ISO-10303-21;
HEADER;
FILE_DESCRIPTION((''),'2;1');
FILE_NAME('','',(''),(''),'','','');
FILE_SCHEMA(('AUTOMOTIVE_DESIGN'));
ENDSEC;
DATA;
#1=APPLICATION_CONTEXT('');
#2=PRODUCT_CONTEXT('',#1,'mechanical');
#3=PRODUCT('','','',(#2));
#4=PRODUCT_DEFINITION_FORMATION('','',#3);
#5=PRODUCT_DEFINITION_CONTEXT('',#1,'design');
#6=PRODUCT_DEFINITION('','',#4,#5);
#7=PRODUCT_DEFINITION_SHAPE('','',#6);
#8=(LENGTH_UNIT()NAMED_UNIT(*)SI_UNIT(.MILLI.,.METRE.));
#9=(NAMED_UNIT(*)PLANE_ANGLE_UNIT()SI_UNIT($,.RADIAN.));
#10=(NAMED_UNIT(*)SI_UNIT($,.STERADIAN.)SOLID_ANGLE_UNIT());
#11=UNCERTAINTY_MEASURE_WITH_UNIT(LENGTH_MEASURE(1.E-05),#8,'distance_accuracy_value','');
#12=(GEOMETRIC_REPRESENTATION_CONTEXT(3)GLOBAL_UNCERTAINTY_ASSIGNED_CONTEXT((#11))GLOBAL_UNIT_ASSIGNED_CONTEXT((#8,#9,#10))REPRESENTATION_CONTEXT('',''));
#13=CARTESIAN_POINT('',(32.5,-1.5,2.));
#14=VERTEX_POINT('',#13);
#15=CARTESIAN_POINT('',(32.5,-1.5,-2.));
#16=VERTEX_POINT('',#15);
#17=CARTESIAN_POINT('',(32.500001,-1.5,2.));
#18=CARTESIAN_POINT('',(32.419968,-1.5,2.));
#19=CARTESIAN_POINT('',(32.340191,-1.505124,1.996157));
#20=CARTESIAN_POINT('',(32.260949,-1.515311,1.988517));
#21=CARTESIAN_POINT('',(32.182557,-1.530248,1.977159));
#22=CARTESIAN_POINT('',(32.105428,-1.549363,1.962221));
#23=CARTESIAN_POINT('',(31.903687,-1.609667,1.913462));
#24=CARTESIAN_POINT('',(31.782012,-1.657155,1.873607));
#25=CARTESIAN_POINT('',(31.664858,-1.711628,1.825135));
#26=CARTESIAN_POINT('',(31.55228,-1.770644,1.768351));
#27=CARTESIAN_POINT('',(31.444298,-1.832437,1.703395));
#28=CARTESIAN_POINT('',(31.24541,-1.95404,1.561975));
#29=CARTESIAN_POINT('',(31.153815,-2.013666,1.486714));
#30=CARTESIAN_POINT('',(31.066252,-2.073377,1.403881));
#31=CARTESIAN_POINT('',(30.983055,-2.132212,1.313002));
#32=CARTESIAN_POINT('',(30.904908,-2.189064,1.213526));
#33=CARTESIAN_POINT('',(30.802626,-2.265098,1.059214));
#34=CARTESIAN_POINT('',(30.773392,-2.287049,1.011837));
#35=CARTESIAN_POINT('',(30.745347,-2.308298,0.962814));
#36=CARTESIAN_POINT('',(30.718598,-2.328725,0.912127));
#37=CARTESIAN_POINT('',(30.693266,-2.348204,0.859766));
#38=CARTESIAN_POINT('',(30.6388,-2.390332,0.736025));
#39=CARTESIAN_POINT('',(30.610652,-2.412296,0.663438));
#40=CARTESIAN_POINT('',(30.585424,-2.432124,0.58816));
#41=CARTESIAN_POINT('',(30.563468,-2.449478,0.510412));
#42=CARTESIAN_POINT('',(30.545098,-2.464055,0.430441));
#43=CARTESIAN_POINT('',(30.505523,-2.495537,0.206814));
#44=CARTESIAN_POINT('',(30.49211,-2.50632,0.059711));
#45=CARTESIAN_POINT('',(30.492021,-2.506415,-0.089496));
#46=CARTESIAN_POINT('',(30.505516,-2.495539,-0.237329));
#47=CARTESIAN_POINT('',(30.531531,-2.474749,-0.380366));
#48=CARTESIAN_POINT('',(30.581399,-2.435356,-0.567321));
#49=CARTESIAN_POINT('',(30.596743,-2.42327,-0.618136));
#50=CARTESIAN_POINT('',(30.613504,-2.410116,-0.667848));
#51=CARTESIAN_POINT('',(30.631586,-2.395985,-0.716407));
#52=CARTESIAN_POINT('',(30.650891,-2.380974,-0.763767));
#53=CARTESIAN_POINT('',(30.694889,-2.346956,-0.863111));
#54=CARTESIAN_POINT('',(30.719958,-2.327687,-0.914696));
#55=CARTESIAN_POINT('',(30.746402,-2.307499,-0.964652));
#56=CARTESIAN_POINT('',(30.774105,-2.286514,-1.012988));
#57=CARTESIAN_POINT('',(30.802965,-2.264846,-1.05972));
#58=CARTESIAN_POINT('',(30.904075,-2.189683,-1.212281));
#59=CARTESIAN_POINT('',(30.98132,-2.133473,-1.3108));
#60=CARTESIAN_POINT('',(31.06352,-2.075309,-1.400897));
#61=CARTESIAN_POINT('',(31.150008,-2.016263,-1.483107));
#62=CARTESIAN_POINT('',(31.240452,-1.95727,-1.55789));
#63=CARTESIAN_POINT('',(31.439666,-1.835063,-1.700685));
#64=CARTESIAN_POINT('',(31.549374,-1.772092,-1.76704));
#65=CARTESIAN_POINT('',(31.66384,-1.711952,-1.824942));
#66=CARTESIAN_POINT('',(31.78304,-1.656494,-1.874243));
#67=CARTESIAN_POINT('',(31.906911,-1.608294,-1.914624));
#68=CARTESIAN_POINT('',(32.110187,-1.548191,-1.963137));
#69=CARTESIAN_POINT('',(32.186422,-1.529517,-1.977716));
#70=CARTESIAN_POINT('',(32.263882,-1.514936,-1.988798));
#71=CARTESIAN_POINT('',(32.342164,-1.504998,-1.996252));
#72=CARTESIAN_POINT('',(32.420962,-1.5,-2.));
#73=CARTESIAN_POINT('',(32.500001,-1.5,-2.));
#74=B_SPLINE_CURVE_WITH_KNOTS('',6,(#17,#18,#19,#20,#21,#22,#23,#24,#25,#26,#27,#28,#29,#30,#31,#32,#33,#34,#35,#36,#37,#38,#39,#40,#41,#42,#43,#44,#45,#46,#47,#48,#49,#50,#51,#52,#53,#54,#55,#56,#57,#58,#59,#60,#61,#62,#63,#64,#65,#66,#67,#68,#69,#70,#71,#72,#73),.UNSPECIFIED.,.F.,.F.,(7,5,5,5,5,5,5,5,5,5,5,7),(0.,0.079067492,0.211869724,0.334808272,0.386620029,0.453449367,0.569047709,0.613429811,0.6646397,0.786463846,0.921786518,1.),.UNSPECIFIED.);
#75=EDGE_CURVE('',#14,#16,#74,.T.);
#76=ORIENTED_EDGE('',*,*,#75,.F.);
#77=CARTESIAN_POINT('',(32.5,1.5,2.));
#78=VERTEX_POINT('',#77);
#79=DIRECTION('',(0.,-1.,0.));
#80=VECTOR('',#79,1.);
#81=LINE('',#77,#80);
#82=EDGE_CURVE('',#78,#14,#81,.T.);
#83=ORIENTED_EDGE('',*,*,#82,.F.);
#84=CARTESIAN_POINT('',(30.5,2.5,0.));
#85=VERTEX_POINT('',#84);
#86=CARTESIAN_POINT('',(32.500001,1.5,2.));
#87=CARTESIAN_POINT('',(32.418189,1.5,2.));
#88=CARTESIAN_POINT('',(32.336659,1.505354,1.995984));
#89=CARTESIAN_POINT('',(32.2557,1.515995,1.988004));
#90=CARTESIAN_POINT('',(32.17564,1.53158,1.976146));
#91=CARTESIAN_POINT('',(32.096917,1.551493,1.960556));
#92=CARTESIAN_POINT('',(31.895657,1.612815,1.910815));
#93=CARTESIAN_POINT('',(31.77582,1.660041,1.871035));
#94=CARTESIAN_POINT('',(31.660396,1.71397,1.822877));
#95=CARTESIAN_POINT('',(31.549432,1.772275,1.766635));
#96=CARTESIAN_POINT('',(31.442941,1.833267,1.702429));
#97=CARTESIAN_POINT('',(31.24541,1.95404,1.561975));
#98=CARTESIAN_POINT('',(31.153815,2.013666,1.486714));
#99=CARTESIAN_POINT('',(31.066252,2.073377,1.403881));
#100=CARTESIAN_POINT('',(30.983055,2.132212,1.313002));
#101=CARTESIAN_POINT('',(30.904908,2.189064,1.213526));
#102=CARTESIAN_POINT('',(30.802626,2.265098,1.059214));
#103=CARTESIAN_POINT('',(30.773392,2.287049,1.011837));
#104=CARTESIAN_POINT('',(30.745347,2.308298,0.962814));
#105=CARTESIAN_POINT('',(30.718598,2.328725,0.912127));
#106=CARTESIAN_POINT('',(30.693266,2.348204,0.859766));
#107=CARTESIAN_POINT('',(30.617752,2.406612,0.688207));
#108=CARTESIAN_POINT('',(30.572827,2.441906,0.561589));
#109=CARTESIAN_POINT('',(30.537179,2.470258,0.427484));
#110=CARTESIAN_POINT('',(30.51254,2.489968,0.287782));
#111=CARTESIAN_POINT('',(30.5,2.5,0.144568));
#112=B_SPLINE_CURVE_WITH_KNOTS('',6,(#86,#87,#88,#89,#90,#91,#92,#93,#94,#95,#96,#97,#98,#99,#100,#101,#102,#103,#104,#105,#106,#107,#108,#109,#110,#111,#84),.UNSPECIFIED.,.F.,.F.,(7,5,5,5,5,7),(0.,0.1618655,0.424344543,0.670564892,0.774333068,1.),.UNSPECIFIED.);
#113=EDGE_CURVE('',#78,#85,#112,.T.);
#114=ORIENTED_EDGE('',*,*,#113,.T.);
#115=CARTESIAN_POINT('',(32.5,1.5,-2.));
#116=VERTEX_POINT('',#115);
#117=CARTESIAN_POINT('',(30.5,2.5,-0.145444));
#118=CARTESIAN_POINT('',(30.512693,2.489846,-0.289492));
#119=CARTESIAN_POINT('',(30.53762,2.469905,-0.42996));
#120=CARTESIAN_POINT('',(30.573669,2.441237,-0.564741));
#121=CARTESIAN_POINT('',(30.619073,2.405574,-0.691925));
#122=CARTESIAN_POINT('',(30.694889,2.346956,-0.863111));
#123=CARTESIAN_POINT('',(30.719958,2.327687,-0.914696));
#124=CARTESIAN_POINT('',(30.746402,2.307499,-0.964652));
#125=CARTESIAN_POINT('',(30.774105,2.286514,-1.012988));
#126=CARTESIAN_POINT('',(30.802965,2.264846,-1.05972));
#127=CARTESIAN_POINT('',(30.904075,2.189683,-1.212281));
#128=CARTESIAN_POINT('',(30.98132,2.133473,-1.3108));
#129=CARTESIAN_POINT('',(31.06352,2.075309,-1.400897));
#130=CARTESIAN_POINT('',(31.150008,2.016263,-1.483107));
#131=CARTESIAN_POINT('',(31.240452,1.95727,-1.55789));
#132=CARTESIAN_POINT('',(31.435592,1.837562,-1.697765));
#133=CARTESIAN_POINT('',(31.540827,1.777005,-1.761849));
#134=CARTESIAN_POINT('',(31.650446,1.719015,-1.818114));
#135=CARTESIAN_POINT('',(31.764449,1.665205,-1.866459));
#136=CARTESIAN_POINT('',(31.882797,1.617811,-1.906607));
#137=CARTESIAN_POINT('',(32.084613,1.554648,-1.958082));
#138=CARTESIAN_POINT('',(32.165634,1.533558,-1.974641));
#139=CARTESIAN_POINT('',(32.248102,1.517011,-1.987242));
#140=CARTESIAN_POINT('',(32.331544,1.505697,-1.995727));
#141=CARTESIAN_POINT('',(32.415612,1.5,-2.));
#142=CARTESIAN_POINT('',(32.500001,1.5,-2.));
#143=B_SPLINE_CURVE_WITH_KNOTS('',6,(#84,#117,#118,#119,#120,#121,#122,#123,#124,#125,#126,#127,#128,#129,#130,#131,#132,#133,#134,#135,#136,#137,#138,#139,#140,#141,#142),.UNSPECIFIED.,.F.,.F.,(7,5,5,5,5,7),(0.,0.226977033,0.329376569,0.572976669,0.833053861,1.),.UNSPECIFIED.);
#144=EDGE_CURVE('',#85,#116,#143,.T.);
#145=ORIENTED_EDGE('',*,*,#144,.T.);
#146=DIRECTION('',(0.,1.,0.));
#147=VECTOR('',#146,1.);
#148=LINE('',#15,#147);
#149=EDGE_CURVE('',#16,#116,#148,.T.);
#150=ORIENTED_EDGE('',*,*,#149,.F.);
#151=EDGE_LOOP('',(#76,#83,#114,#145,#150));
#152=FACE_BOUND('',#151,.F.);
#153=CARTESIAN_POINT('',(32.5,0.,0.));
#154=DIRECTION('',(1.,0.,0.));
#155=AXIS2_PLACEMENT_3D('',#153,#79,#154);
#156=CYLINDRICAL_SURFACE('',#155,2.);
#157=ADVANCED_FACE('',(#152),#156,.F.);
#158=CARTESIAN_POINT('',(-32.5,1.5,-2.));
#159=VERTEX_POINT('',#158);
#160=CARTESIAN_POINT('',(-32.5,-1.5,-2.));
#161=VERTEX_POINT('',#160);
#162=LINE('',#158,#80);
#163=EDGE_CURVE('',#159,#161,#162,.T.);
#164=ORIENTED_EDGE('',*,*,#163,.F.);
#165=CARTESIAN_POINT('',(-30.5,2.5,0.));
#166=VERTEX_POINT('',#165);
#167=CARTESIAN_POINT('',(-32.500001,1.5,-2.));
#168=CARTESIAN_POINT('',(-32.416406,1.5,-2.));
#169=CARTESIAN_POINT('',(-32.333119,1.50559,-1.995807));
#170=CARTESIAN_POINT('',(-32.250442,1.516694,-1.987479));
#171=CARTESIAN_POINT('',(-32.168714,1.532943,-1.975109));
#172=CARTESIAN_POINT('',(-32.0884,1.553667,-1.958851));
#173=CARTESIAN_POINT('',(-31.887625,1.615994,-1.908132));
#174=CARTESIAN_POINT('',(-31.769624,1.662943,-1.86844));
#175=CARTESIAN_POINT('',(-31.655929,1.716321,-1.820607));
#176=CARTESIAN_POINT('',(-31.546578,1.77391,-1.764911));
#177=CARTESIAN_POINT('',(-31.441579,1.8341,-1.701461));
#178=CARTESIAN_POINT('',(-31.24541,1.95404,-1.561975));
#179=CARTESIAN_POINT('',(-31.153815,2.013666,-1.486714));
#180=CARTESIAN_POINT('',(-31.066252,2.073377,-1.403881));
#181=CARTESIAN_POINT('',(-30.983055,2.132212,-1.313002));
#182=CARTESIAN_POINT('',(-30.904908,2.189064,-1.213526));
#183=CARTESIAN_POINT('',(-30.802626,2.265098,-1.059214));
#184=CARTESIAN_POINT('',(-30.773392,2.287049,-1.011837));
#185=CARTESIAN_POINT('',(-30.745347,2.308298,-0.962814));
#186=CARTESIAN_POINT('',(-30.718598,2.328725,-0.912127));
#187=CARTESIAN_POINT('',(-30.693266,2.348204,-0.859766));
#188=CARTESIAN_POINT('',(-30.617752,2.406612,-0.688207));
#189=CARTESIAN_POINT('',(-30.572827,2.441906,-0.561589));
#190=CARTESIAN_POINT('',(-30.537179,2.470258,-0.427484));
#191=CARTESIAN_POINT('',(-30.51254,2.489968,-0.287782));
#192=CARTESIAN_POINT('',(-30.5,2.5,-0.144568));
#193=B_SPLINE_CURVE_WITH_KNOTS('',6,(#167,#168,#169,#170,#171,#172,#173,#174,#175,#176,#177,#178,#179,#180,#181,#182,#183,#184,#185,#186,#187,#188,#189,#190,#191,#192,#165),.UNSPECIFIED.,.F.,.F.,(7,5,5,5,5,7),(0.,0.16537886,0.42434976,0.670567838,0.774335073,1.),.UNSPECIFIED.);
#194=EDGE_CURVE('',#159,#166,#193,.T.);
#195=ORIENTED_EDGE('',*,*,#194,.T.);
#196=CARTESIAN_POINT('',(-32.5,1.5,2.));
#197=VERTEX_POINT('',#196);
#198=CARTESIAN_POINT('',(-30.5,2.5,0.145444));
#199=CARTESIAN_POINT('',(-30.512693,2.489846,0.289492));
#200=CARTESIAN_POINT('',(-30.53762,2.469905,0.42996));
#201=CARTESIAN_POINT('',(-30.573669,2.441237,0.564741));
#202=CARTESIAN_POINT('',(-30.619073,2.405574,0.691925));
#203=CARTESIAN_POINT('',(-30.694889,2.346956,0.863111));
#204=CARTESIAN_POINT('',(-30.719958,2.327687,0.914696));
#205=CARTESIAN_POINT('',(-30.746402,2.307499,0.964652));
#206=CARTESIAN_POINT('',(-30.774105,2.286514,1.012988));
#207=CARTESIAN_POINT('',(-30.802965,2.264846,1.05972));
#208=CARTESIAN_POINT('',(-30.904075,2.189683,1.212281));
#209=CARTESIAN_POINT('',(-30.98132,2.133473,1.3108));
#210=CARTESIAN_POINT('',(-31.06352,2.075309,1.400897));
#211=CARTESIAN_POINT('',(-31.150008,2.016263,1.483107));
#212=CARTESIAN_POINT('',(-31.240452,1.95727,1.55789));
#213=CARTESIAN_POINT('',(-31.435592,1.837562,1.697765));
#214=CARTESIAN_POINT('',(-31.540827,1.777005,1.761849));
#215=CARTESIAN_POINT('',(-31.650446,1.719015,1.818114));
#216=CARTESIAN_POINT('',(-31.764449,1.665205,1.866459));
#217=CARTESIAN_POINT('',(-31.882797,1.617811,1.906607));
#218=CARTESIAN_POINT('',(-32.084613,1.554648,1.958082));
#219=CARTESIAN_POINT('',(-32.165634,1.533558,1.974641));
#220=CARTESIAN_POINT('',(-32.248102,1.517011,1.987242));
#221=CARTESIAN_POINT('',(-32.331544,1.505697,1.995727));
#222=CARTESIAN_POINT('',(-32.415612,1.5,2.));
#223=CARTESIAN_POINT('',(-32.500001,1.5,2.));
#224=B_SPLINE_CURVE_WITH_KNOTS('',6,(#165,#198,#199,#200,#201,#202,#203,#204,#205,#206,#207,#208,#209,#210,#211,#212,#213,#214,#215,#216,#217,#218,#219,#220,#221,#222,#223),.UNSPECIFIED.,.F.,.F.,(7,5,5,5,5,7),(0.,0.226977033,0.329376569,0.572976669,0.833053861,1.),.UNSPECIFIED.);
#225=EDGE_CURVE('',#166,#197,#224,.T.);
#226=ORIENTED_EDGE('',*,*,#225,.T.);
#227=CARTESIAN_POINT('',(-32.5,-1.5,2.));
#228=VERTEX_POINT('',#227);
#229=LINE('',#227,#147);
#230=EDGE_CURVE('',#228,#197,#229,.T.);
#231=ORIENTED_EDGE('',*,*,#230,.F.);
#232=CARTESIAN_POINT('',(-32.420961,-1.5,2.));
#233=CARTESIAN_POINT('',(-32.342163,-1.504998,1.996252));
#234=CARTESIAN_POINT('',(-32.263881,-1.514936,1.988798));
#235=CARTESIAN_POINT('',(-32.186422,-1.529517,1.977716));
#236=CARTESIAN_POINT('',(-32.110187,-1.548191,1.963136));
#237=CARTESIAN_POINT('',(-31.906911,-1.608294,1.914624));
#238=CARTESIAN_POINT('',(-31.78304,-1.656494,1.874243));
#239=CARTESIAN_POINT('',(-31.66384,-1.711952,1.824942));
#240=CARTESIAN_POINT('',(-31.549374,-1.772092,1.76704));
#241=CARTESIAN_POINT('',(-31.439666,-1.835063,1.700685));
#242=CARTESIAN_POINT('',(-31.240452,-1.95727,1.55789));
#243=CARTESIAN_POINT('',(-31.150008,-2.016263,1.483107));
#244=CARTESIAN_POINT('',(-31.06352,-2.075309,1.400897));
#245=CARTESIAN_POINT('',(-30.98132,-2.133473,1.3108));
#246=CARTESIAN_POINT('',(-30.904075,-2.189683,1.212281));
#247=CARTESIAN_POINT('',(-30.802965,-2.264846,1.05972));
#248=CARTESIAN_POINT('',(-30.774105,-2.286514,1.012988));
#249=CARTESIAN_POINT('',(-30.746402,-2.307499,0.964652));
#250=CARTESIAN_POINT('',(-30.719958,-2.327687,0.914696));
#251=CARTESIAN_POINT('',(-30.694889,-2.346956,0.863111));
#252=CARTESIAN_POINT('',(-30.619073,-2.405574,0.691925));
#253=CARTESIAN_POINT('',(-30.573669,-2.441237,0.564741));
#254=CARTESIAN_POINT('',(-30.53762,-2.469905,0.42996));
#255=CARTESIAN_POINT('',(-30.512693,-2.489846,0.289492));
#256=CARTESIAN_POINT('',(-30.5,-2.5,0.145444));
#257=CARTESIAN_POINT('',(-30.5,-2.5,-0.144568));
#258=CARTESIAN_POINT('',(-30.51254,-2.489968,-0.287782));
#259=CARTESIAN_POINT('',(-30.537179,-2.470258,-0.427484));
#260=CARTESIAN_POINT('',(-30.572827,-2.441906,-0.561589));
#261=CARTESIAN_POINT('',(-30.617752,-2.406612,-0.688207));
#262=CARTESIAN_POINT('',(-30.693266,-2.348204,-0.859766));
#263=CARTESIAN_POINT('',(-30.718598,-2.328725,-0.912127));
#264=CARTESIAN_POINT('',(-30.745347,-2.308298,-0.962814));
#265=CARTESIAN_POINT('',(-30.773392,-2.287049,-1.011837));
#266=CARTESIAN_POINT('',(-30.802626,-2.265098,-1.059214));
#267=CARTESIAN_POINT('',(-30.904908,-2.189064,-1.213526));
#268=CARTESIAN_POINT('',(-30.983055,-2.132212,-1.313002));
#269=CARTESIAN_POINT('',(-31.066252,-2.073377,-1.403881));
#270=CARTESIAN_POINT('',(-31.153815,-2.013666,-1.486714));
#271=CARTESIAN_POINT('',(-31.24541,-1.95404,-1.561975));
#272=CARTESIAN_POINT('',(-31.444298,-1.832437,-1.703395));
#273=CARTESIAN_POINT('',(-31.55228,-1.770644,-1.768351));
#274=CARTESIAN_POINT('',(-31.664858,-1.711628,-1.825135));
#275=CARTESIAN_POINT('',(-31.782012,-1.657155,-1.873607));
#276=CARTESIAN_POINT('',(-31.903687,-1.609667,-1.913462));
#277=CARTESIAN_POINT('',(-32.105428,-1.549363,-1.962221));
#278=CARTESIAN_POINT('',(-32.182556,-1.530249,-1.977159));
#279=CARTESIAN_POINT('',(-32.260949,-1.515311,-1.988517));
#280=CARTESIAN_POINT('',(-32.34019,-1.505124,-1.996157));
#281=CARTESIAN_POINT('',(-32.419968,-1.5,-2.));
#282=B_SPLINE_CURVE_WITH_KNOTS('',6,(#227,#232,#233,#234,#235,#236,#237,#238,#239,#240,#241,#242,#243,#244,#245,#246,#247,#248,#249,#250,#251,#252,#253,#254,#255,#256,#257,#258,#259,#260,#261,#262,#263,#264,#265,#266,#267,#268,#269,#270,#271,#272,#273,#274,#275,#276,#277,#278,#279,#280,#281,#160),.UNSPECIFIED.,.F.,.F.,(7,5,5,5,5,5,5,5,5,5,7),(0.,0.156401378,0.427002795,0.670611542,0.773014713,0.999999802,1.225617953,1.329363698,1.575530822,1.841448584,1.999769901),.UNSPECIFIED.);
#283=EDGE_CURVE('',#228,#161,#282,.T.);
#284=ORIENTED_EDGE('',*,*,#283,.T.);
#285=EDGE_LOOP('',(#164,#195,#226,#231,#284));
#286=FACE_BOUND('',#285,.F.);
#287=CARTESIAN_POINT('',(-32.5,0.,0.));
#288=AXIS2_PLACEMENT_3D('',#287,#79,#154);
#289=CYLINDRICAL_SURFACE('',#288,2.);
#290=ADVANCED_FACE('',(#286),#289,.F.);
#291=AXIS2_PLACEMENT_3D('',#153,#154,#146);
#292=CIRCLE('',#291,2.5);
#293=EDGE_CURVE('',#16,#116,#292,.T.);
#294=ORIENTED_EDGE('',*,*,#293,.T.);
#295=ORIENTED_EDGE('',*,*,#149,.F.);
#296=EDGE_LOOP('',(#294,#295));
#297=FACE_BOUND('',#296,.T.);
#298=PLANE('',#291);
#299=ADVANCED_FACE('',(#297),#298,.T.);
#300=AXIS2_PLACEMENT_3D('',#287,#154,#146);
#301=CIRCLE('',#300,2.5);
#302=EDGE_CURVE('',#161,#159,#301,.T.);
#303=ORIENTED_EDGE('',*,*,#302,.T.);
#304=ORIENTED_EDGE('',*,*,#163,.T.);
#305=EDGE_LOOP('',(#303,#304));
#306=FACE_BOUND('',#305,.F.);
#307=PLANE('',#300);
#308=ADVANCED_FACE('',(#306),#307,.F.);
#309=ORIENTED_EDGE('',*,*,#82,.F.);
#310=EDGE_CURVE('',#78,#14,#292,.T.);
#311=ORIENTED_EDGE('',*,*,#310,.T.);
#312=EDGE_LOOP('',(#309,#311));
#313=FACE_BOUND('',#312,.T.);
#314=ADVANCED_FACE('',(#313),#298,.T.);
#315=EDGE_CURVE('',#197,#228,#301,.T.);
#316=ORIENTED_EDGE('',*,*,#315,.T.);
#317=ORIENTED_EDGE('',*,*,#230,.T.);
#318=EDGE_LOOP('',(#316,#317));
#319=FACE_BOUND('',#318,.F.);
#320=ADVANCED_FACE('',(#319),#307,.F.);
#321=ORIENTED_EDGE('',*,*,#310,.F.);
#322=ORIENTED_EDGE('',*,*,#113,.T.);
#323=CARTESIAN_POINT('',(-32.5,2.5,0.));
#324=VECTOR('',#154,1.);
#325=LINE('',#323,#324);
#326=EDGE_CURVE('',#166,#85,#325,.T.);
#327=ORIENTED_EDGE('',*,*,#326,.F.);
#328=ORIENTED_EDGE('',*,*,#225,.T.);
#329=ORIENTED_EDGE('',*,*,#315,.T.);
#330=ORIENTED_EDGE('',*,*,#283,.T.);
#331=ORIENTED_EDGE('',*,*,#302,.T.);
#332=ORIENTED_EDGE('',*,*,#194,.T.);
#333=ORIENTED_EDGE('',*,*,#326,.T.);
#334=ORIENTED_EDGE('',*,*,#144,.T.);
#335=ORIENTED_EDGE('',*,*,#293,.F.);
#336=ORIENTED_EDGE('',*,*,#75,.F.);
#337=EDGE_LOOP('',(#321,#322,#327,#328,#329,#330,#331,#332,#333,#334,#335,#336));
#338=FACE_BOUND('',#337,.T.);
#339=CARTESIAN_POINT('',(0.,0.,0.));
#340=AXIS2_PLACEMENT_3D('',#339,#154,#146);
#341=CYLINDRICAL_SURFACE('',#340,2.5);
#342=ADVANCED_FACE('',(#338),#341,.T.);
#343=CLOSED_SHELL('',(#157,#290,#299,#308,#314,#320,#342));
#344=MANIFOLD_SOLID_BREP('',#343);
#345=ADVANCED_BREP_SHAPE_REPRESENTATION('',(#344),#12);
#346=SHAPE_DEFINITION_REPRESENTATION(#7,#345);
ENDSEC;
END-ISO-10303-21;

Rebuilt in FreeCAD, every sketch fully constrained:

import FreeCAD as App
import Part
import Sketcher

V = App.Vector
Q = App.Units.Quantity

doc = App.newDocument("Part")
body = doc.addObject("PartDesign::Body", "Body")

# Sketch on YZ plane
sketch1 = body.newObject("Sketcher::SketchObject", "Sketch")
sketch1.AttachmentSupport = (doc.getObject("YZ_Plane"), [""])
sketch1.MapMode = "FlatFace"
sketch1.addGeometry(Part.Circle(V(0, 0, 0), V(0, 0, 1), 2.5), False)
sketch1.addConstraint([
    Sketcher.Constraint("Coincident", 0, 3, -1, 1),
    Sketcher.Constraint("Diameter", 0, Q("5 mm")),
])
pad1 = body.newObject("PartDesign::Pad", "Pad")
pad1.Profile = sketch1
pad1.Length = 65
pad1.Midplane = True

# Sketch on XZ plane
sketch2 = body.newObject("Sketcher::SketchObject", "Sketch001")
sketch2.AttachmentSupport = (doc.getObject("XZ_Plane"), [""])
sketch2.MapMode = "FlatFace"
sketch2.addGeometry([
    Part.Circle(V(-32.5, 0, 0), V(0, 0, 1), 2),
    Part.Circle(V(32.5, 0, 0), V(0, 0, 1), 2),
], False)
sketch2.addConstraint([
    Sketcher.Constraint("Equal", 0, 1),
    Sketcher.Constraint("Symmetric", 0, 3, 1, 3, -1, 1),
    Sketcher.Constraint("PointOnObject", 0, 3, -1),
    Sketcher.Constraint("Diameter", 0, Q("4 mm")),
    Sketcher.Constraint("DistanceX", 0, 3, 1, 3, Q("65 mm")),
])
pocket1 = body.newObject("PartDesign::Pocket", "Pocket")
pocket1.Profile = sketch2
pocket1.Type = "ThroughAll"
pocket1.Midplane = True

doc.recompute()
